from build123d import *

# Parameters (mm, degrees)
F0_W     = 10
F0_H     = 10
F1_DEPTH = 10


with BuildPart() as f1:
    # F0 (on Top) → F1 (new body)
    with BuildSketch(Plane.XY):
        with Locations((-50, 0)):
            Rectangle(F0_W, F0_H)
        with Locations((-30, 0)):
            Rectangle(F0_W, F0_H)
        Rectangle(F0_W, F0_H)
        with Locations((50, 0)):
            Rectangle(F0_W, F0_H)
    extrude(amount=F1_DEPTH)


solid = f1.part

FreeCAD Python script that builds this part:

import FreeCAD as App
import Part
import Sketcher


def add_polygon(sketch, points):
    """Adds a closed chain of lines whose ends are joined by coincident constraints."""
    first, n = sketch.GeometryCount, len(points)
    for a, b in zip(points, points[1:] + points[:1]):
        sketch.addGeometry(Part.LineSegment(App.Vector(*a, 0), App.Vector(*b, 0)), False)
    for i in range(n):
        sketch.addConstraint(Sketcher.Constraint("Coincident", first + i, 2, first + (i + 1) % n, 1))

doc = App.newDocument("Part")
body = doc.addObject("PartDesign::Body", "Body")
body.AllowCompound = True

sketch1 = doc.addObject("Sketcher::SketchObject", "Sketch")
body.addObject(sketch1)
sketch1.AttachmentSupport = (doc.XY_Plane, [""])
sketch1.MapMode = "FlatFace"
add_polygon(sketch1, [(-55, 5), (-55, -5), (-45, -5), (-45, 5)])
add_polygon(sketch1, [(-35, 5), (-35, -5), (-25, -5), (-25, 5)])
add_polygon(sketch1, [(-5, 5), (-5, -5), (5, -5), (5, 5)])
add_polygon(sketch1, [(45, 5), (45, -5), (55, -5), (55, 5)])
sketch1.addConstraint([
    Sketcher.Constraint("Vertical", 0),
    Sketcher.Constraint("Horizontal", 1),
    Sketcher.Constraint("Vertical", 2),
    Sketcher.Constraint("Horizontal", 3),
    Sketcher.Constraint("Vertical", 4),
    Sketcher.Constraint("Horizontal", 5),
    Sketcher.Constraint("Vertical", 6),
    Sketcher.Constraint("Horizontal", 7),
    Sketcher.Constraint("Vertical", 8),
    Sketcher.Constraint("Horizontal", 9),
    Sketcher.Constraint("Vertical", 10),
    Sketcher.Constraint("Horizontal", 11),
    Sketcher.Constraint("Vertical", 12),
    Sketcher.Constraint("Horizontal", 13),
    Sketcher.Constraint("Vertical", 14),
    Sketcher.Constraint("Horizontal", 15),
    Sketcher.Constraint("Symmetric", 8, 2, 10, 2, -1, 1),
    Sketcher.Constraint("Symmetric", 2, 2, 12, 2, -1, 1),
    Sketcher.Constraint("Symmetric", 0, 2, 14, 2, -1, 1),
    Sketcher.Constraint("Horizontal", 1, 2, 4, 2),
    Sketcher.Constraint("Horizontal", 3, 2, 6, 2),
    Sketcher.Constraint("Horizontal", 5, 2, 8, 2),
    Sketcher.Constraint("Horizontal", 7, 2, 10, 2),
    Sketcher.Constraint("Equal", 3, 5),
    Sketcher.Constraint("Equal", 7, 9),
    Sketcher.Constraint("Equal", 15, 0),
    Sketcher.Constraint("DistanceX", 1, 1, 1, 2, 10.0),
    Sketcher.Constraint("DistanceX", 0, 2, -1, 1, 55.0),
    Sketcher.Constraint("DistanceX", 4, 2, -1, 1, 35.0),
])
pad1 = doc.addObject("PartDesign::Pad", "Pad")
body.addObject(pad1)
pad1.Profile = sketch1
pad1.Length = 10

doc.recompute()
